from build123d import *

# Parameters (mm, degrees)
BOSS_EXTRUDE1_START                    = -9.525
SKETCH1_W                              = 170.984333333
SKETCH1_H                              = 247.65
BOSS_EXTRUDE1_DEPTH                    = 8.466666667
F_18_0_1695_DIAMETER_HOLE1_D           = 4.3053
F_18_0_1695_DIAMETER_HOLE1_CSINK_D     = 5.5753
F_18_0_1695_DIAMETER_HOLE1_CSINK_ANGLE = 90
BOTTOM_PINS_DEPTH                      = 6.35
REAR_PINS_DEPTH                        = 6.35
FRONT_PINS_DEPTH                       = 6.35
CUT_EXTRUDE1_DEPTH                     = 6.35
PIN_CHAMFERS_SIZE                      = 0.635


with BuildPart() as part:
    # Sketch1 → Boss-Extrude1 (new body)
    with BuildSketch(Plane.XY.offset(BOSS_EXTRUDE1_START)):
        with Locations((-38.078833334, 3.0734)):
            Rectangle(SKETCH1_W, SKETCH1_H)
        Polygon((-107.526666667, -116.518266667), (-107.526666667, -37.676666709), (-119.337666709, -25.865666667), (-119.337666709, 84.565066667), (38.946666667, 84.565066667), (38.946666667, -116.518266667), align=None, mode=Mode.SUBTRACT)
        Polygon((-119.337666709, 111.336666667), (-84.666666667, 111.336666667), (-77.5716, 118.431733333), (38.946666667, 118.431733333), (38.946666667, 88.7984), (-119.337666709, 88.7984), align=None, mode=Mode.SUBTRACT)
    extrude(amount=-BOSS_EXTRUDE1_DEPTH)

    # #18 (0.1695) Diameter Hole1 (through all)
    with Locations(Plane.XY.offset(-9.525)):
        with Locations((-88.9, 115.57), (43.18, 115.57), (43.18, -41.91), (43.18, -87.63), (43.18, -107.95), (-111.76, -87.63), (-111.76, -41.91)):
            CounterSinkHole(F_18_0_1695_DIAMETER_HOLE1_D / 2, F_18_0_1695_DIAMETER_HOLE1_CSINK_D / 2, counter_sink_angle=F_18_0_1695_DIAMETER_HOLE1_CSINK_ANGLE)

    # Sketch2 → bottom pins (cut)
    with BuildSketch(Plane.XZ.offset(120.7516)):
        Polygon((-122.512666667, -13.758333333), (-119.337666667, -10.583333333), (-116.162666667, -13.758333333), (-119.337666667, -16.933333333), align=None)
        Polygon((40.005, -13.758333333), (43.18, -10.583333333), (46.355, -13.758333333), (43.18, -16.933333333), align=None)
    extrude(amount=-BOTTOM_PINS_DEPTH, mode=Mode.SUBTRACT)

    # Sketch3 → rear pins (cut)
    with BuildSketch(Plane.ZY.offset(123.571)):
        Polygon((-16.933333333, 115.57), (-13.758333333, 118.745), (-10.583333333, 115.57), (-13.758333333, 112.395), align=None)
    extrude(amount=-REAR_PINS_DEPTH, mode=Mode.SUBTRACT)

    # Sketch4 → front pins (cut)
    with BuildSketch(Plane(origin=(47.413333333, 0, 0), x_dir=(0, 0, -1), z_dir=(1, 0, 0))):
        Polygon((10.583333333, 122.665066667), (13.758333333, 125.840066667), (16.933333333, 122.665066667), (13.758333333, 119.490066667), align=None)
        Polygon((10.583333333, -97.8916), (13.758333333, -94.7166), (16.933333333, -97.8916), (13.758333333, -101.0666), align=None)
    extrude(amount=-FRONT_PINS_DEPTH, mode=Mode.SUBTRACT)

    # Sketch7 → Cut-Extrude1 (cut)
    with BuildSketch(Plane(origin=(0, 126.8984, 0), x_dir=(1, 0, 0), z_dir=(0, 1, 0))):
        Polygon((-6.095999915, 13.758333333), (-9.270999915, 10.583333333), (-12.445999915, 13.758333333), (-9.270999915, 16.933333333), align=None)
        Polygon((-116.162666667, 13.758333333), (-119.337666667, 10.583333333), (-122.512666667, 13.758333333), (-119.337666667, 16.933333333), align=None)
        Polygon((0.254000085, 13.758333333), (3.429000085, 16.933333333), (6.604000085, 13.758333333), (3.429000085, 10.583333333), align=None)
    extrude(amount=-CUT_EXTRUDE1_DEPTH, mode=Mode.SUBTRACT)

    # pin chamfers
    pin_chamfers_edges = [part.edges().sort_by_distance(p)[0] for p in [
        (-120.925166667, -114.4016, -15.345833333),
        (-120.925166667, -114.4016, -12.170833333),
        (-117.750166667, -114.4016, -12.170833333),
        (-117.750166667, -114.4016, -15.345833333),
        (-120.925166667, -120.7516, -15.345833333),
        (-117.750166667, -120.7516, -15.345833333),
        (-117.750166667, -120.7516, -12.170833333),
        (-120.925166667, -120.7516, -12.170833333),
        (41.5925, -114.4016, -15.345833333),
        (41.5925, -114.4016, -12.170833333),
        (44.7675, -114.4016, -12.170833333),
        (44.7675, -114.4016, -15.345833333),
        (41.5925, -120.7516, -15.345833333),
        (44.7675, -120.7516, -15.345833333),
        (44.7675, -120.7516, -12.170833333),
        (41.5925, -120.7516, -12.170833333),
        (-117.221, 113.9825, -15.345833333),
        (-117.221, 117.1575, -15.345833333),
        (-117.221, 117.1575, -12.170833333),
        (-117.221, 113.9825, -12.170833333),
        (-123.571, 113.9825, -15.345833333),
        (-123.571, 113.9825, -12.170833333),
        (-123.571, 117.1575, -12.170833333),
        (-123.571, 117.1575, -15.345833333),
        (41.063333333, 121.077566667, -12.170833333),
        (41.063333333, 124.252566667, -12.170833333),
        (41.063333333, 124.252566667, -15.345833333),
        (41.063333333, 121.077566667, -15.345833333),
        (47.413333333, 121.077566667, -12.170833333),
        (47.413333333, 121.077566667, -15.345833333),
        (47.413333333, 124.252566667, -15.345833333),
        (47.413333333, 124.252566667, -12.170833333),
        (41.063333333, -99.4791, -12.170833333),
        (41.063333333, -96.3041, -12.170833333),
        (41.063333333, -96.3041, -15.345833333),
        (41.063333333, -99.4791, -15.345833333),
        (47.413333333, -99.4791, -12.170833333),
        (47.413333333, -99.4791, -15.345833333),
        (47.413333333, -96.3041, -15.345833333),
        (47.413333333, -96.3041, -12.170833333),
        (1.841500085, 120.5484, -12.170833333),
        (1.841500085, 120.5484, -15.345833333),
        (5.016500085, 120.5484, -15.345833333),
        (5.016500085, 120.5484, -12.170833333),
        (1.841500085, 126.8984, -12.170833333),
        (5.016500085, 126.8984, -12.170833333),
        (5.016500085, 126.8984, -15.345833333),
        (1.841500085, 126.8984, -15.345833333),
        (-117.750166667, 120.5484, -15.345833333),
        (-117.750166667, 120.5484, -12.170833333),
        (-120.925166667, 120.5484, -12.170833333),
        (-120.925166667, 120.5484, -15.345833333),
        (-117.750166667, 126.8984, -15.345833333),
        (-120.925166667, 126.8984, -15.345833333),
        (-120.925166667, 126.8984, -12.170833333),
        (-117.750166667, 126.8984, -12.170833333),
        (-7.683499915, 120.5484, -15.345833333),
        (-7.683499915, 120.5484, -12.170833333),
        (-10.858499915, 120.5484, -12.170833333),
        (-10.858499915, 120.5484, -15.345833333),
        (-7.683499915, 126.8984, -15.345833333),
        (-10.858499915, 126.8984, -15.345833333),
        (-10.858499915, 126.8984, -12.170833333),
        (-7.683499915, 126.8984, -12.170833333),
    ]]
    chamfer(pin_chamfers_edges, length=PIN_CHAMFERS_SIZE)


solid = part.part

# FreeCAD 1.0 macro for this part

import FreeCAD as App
import Part
import Sketcher

V = App.Vector
Q = App.Units.Quantity


def edges_at(feature, points):
    """Names of the edges that pass closest to the given points."""
    edges = feature.Shape.Edges
    near = lambda p: min(range(len(edges)), key=lambda i: edges[i].distToShape(Part.Vertex(*p))[0])
    return sorted({f"Edge{near(p) + 1}" for p in points})

doc = App.newDocument("Part")
params = doc.addObject("Spreadsheet::Sheet", "Params")
for row, (alias, value) in enumerate([
    ("sketch1_height", "9.75 in"),
    ("sketch1_width", "1.365 in"),
    ("sketch1_height2", "3.104 in"),
    ("pad1_length", "8.466667 mm"),
    ("hole_diameter", "0.1695 in"),
    ("hole_csink_diameter", "0.2195 in"),
    ("pocket1_length", "0.25 in"),
    ("pocket2_length", "0.25 in"),
    ("pocket3_length", "0.25 in"),
    ("pocket4_length", "0.25 in"),
    ("chamfer_size", "0.025 in"),
], start=1):
    params.set(f"A{row}", alias)
    params.set(f"B{row}", "=" + value)
    params.setAlias(f"B{row}", alias)

body = doc.addObject("PartDesign::Body", "Body")

sketch1 = body.newObject("Sketcher::SketchObject", "Sketch")
sketch1.AttachmentSupport = (doc.getObject("XY_Plane"), [""])
sketch1.MapMode = "FlatFace"
sketch1.AttachmentOffset = App.Placement(V(0, 0, -0.375 * 25.4), App.Rotation())
sketch1.addGeometry(Part.LineSegment(V(-124, 127, 0), V(-124, -121, 0)), False)
sketch1.addGeometry(Part.LineSegment(V(-124, -121, 0), V(47, -121, 0)), False)
sketch1.addGeometry(Part.LineSegment(V(47, -121, 0), V(47, 127, 0)), False)
sketch1.addGeometry(Part.LineSegment(V(47, 127, 0), V(-124, 127, 0)), False)
sketch1.addGeometry(Part.LineSegment(V(39, -117, 0), V(-108, -117, 0)), False)
sketch1.addGeometry(Part.LineSegment(V(-108, -117, 0), V(-108, -38, 0)), False)
sketch1.addGeometry(Part.LineSegment(V(-108, -38, 0), V(-119, -26, 0)), False)
sketch1.addGeometry(Part.LineSegment(V(-119, -26, 0), V(-119, 85, 0)), False)
sketch1.addGeometry(Part.LineSegment(V(-119, 85, 0), V(39, 85, 0)), False)
sketch1.addGeometry(Part.LineSegment(V(39, 85, 0), V(39, -117, 0)), False)
sketch1.addGeometry(Part.LineSegment(V(-119, 89, 0), V(-119, 111, 0)), False)
sketch1.addGeometry(Part.LineSegment(V(-119, 111, 0), V(-85, 111, 0)), False)
sketch1.addGeometry(Part.LineSegment(V(-85, 111, 0), V(-78, 118, 0)), False)
sketch1.addGeometry(Part.LineSegment(V(-78, 118, 0), V(39, 118, 0)), False)
sketch1.addGeometry(Part.LineSegment(V(39, 118, 0), V(39, 89, 0)), False)
sketch1.addGeometry(Part.LineSegment(V(39, 89, 0), V(-119, 89, 0)), False)
sketch1.addConstraint(Sketcher.Constraint("Coincident", 0, 2, 1, 1))
sketch1.addConstraint(Sketcher.Constraint("Coincident", 1, 2, 2, 1))
sketch1.addConstraint(Sketcher.Constraint("Coincident", 2, 2, 3, 1))
sketch1.addConstraint(Sketcher.Constraint("Coincident", 3, 2, 0, 1))
sketch1.addConstraint(Sketcher.Constraint("Coincident", 4, 2, 5, 1))
sketch1.addConstraint(Sketcher.Constraint("Coincident", 5, 2, 6, 1))
sketch1.addConstraint(Sketcher.Constraint("Coincident", 6, 2, 7, 1))
sketch1.addConstraint(Sketcher.Constraint("Coincident", 7, 2, 8, 1))
sketch1.addConstraint(Sketcher.Constraint("Coincident", 8, 2, 9, 1))
sketch1.addConstraint(Sketcher.Constraint("Coincident", 9, 2, 4, 1))
sketch1.addConstraint(Sketcher.Constraint("Coincident", 10, 2, 11, 1))
sketch1.addConstraint(Sketcher.Constraint("Coincident", 11, 2, 12, 1))
sketch1.addConstraint(Sketcher.Constraint("Coincident", 12, 2, 13, 1))
sketch1.addConstraint(Sketcher.Constraint("Coincident", 13, 2, 14, 1))
sketch1.addConstraint(Sketcher.Constraint("Coincident", 14, 2, 15, 1))
sketch1.addConstraint(Sketcher.Constraint("Coincident", 15, 2, 10, 1))
sketch1.addConstraint(Sketcher.Constraint("Vertical", 0))
sketch1.addConstraint(Sketcher.Constraint("Horizontal", 1))
sketch1.addConstraint(Sketcher.Constraint("Vertical", 2))
sketch1.addConstraint(Sketcher.Constraint("Horizontal", 3))
sketch1.addConstraint(Sketcher.Constraint("Horizontal", 4))
sketch1.addConstraint(Sketcher.Constraint("Vertical", 5))
sketch1.addConstraint(Sketcher.Constraint("Vertical", 7))
sketch1.addConstraint(Sketcher.Constraint("Horizontal", 8))
sketch1.addConstraint(Sketcher.Constraint("Vertical", 9))
sketch1.addConstraint(Sketcher.Constraint("Vertical", 10))
sketch1.addConstraint(Sketcher.Constraint("Horizontal", 11))
sketch1.addConstraint(Sketcher.Constraint("Horizontal", 13))
sketch1.addConstraint(Sketcher.Constraint("Vertical", 14))
sketch1.addConstraint(Sketcher.Constraint("Horizontal", 15))
sketch1.addConstraint(Sketcher.Constraint("Perpendicular", 6, 12))
sketch1.addConstraint(Sketcher.Constraint("Vertical", 7, 2, 10, 2))
sketch1.addConstraint(Sketcher.Constraint("Vertical", 9, 2, 13, 2))
sketch1.addConstraint(Sketcher.Constraint("Angle", 6, Q("135 deg")))
sketch1.addConstraint(Sketcher.Constraint("DistanceY", 0, 2, 0, 1, Q("9.75 in")))
sketch1.addConstraint(Sketcher.Constraint("DistanceX", 4, 2, 1, 2, Q("6.1 in")))
sketch1.addConstraint(Sketcher.Constraint("DistanceX", 11, 2, 2, 2, Q("5.2 in")))
sketch1.addConstraint(Sketcher.Constraint("DistanceY", 14, 2, 2, 2, Q("1.5 in")))
sketch1.addConstraint(Sketcher.Constraint("DistanceX", 11, 1, 11, 2, Q("1.365 in")))
sketch1.addConstraint(Sketcher.Constraint("DistanceY", 5, 1, 5, 2, Q("3.104 in")))
sketch1.addConstraint(Sketcher.Constraint("DistanceX", 0, 2, -1, 1, Q("4.865 in")))
sketch1.addConstraint(Sketcher.Constraint("DistanceY", 0, 2, -1, 1, Q("4.754 in")))
sketch1.addConstraint(Sketcher.Constraint("DistanceX", 12, 2, -1, 1, Q("3.054 in")))
sketch1.addConstraint(Sketcher.Constraint("DistanceY", 7, 2, 10, 2, Q("1.054 in")))
sketch1.addConstraint(Sketcher.Constraint("Distance", 12, Q("10.03394 mm")))
sketch1.addConstraint(Sketcher.Constraint("DistanceX", 4, 2, 4, 1, Q("146.473333 mm")))
sketch1.addConstraint(Sketcher.Constraint("DistanceY", 7, 1, 7, 2, Q("110.430733 mm")))
sketch1.addConstraint(Sketcher.Constraint("DistanceY", 10, 1, 10, 2, Q("22.538267 mm")))
sketch1.setExpression("Constraints[34]", "Params.sketch1_height")
sketch1.setExpression("Constraints[38]", "Params.sketch1_width")
sketch1.setExpression("Constraints[39]", "Params.sketch1_height2")
pad1 = body.newObject("PartDesign::Pad", "Pad")
pad1.Profile = sketch1
pad1.setExpression("Length", "Params.pad1_length")
pad1.Reversed = True

sketch2 = body.newObject("Sketcher::SketchObject", "Sketch001")
sketch2.AttachmentSupport = (doc.getObject("XY_Plane"), [""])
sketch2.MapMode = "FlatFace"
sketch2.AttachmentOffset = App.Placement(V(0, 0, -0.375 * 25.4), App.Rotation())
sketch2.addGeometry(Part.Circle(V(-88.9, 115.6, 0), V(0, 0, 1), 2.2), False)
sketch2.addGeometry(Part.Circle(V(43.2, 115.6, 0), V(0, 0, 1), 2.2), False)
sketch2.addGeometry(Part.Circle(V(43.2, -41.9, 0), V(0, 0, 1), 2.2), False)
sketch2.addGeometry(Part.Circle(V(43.2, -87.6, 0), V(0, 0, 1), 2.2), False)
sketch2.addGeometry(Part.Circle(V(43.2, -108, 0), V(0, 0, 1), 2.2), False)
sketch2.addGeometry(Part.Circle(V(-111.8, -87.6, 0), V(0, 0, 1), 2.2), False)
sketch2.addGeometry(Part.Circle(V(-111.8, -41.9, 0), V(0, 0, 1), 2.2), False)
sketch2.addConstraint(Sketcher.Constraint("Equal", 0, 1))
sketch2.addConstraint(Sketcher.Constraint("Equal", 1, 2))
sketch2.addConstraint(Sketcher.Constraint("Equal", 2, 3))
sketch2.addConstraint(Sketcher.Constraint("Equal", 3, 4))
sketch2.addConstraint(Sketcher.Constraint("Equal", 4, 5))
sketch2.addConstraint(Sketcher.Constraint("Equal", 5, 6))
sketch2.addConstraint(Sketcher.Constraint("Horizontal", 0, 3, 1, 3))
sketch2.addConstraint(Sketcher.Constraint("Horizontal", 3, 3, 5, 3))
sketch2.addConstraint(Sketcher.Constraint("Horizontal", 2, 3, 6, 3))
sketch2.addConstraint(Sketcher.Constraint("Vertical", 1, 3, 2, 3))
sketch2.addConstraint(Sketcher.Constraint("Vertical", 2, 3, 3, 3))
sketch2.addConstraint(Sketcher.Constraint("Vertical", 3, 3, 4, 3))
sketch2.addConstraint(Sketcher.Constraint("Vertical", 5, 3, 6, 3))
sketch2.addConstraint(Sketcher.Constraint("DistanceY", 3, 3, 1, 3, Q("8 in")))
sketch2.addConstraint(Sketcher.Constraint("Diameter", 0, Q("0.1695 in")))
sketch2.addConstraint(Sketcher.Constraint("DistanceX", 0, 3, -1, 1, Q("3.5 in")))
sketch2.addConstraint(Sketcher.Constraint("DistanceX", -1, 1, 1, 3, Q("1.7 in")))
sketch2.addConstraint(Sketcher.Constraint("DistanceX", 5, 3, -1, 1, Q("4.4 in")))
sketch2.addConstraint(Sketcher.Constraint("DistanceY", 2, 3, 1, 3, Q("6.2 in")))
sketch2.addConstraint(Sketcher.Constraint("DistanceY", 4, 3, 3, 3, Q("0.8 in")))
sketch2.addConstraint(Sketcher.Constraint("DistanceY", -1, 1, 0, 3, Q("4.55 in")))
doc.recompute()
hole = body.newObject("PartDesign::Hole", "Hole")
hole.Profile = sketch2
hole.ThreadType = "None"
hole.setExpression("Diameter", "Params.hole_diameter")
hole.DepthType = "ThroughAll"
hole.HoleCutType = "Countersink"
hole.setExpression("HoleCutDiameter", "Params.hole_csink_diameter")
hole.HoleCutCountersinkAngle = 90

sketch3 = body.newObject("Sketcher::SketchObject", "Sketch002")
sketch3.AttachmentSupport = (doc.getObject("XZ_Plane"), [""])
sketch3.MapMode = "FlatFace"
sketch3.AttachmentOffset = App.Placement(V(0, 0, 4.754 * 25.4), App.Rotation())
sketch3.addGeometry(Part.LineSegment(V(-119.3, -10.6, 0), V(-122.5, -13.8, 0)), False)
sketch3.addGeometry(Part.LineSegment(V(-122.5, -13.8, 0), V(-119.3, -16.9, 0)), False)
sketch3.addGeometry(Part.LineSegment(V(-119.3, -16.9, 0), V(-116.2, -13.8, 0)), False)
sketch3.addGeometry(Part.LineSegment(V(-116.2, -13.8, 0), V(-119.3, -10.6, 0)), False)
sketch3.addGeometry(Part.LineSegment(V(43.2, -10.6, 0), V(40, -13.8, 0)), False)
sketch3.addGeometry(Part.LineSegment(V(40, -13.8, 0), V(43.2, -16.9, 0)), False)
sketch3.addGeometry(Part.LineSegment(V(43.2, -16.9, 0), V(46.4, -13.8, 0)), False)
sketch3.addGeometry(Part.LineSegment(V(46.4, -13.8, 0), V(43.2, -10.6, 0)), False)
sketch3.addConstraint(Sketcher.Constraint("Coincident", 0, 2, 1, 1))
sketch3.addConstraint(Sketcher.Constraint("Coincident", 1, 2, 2, 1))
sketch3.addConstraint(Sketcher.Constraint("Coincident", 2, 2, 3, 1))
sketch3.addConstraint(Sketcher.Constraint("Coincident", 3, 2, 0, 1))
sketch3.addConstraint(Sketcher.Constraint("Coincident", 4, 2, 5, 1))
sketch3.addConstraint(Sketcher.Constraint("Coincident", 5, 2, 6, 1))
sketch3.addConstraint(Sketcher.Constraint("Coincident", 6, 2, 7, 1))
sketch3.addConstraint(Sketcher.Constraint("Coincident", 7, 2, 4, 1))
sketch3.addConstraint(Sketcher.Constraint("Perpendicular", 0, 1))
sketch3.addConstraint(Sketcher.Constraint("Perpendicular", 1, 2))
sketch3.addConstraint(Sketcher.Constraint("Perpendicular", 2, 3))
sketch3.addConstraint(Sketcher.Constraint("Perpendicular", 3, 4))
sketch3.addConstraint(Sketcher.Constraint("Perpendicular", 4, 5))
sketch3.addConstraint(Sketcher.Constraint("Perpendicular", 5, 6))
sketch3.addConstraint(Sketcher.Constraint("Perpendicular", 6, 7))
sketch3.addConstraint(Sketcher.Constraint("Horizontal", 0, 2, 2, 2))
sketch3.addConstraint(Sketcher.Constraint("Horizontal", 2, 2, 4, 2))
sketch3.addConstraint(Sketcher.Constraint("Horizontal", 1, 2, 5, 2))
sketch3.addConstraint(Sketcher.Constraint("Horizontal", 4, 2, 6, 2))
sketch3.addConstraint(Sketcher.Constraint("Vertical", 1, 2, 3, 2))
sketch3.addConstraint(Sketcher.Constraint("DistanceX", -1, 1, 5, 2, Q("1.7 in")))
sketch3.addConstraint(Sketcher.Constraint("DistanceX", 0, 2, 2, 2, Q("0.25 in")))
sketch3.addConstraint(Sketcher.Constraint("DistanceX", 0, 2, -1, 1, Q("122.512667 mm")))
sketch3.addConstraint(Sketcher.Constraint("DistanceY", 0, 2, -1, 1, Q("13.758333 mm")))
pocket1 = body.newObject("PartDesign::Pocket", "Pocket")
pocket1.Profile = sketch3
pocket1.setExpression("Length", "Params.pocket1_length")

sketch4 = body.newObject("Sketcher::SketchObject", "Sketch003")
sketch4.AttachmentSupport = (doc.getObject("YZ_Plane"), [""])
sketch4.MapMode = "FlatFace"
sketch4.AttachmentOffset = App.Placement(V(0, 0, -4.865 * 25.4), App.Rotation())
sketch4.addGeometry(Part.LineSegment(V(118.7, -13.8, 0), V(115.6, -16.9, 0)), False)
sketch4.addGeometry(Part.LineSegment(V(115.6, -16.9, 0), V(112.4, -13.8, 0)), False)
sketch4.addGeometry(Part.LineSegment(V(112.4, -13.8, 0), V(115.6, -10.6, 0)), False)
sketch4.addGeometry(Part.LineSegment(V(115.6, -10.6, 0), V(118.7, -13.8, 0)), False)
sketch4.addConstraint(Sketcher.Constraint("Coincident", 0, 2, 1, 1))
sketch4.addConstraint(Sketcher.Constraint("Coincident", 1, 2, 2, 1))
sketch4.addConstraint(Sketcher.Constraint("Coincident", 2, 2, 3, 1))
sketch4.addConstraint(Sketcher.Constraint("Coincident", 3, 2, 0, 1))
sketch4.addConstraint(Sketcher.Constraint("Perpendicular", 0, 1))
sketch4.addConstraint(Sketcher.Constraint("Perpendicular", 1, 2))
sketch4.addConstraint(Sketcher.Constraint("Perpendicular", 2, 3))
sketch4.addConstraint(Sketcher.Constraint("Horizontal", 1, 2, 3, 2))
sketch4.addConstraint(Sketcher.Constraint("Vertical", 0, 2, 2, 2))
sketch4.addConstraint(Sketcher.Constraint("DistanceX", -1, 1, 0, 2, Q("4.55 in")))
sketch4.addConstraint(Sketcher.Constraint("DistanceY", 0, 2, 2, 2, Q("0.25 in")))
sketch4.addConstraint(Sketcher.Constraint("DistanceY", 0, 2, -1, 1, Q("16.933333 mm")))
pocket2 = body.newObject("PartDesign::Pocket", "Pocket001")
pocket2.Profile = sketch4
pocket2.setExpression("Length", "Params.pocket2_length")
pocket2.Reversed = True

sketch5 = body.newObject("Sketcher::SketchObject", "Sketch004")
sketch5.AttachmentSupport = (doc.getObject("YZ_Plane"), [""])
sketch5.MapMode = "FlatFace"
sketch5.AttachmentOffset = App.Placement(V(0, 0, 47.413333), App.Rotation())
sketch5.addGeometry(Part.LineSegment(V(125.8, -13.8, 0), V(122.7, -10.6, 0)), False)
sketch5.addGeometry(Part.LineSegment(V(122.7, -10.6, 0), V(119.5, -13.8, 0)), False)
sketch5.addGeometry(Part.LineSegment(V(119.5, -13.8, 0), V(122.7, -16.9, 0)), False)
sketch5.addGeometry(Part.LineSegment(V(122.7, -16.9, 0), V(125.8, -13.8, 0)), False)
sketch5.addGeometry(Part.LineSegment(V(-94.7, -13.8, 0), V(-97.9, -10.6, 0)), False)
sketch5.addGeometry(Part.LineSegment(V(-97.9, -10.6, 0), V(-101.1, -13.8, 0)), False)
sketch5.addGeometry(Part.LineSegment(V(-101.1, -13.8, 0), V(-97.9, -16.9, 0)), False)
sketch5.addGeometry(Part.LineSegment(V(-97.9, -16.9, 0), V(-94.7, -13.8, 0)), False)
sketch5.addConstraint(Sketcher.Constraint("Coincident", 0, 2, 1, 1))
sketch5.addConstraint(Sketcher.Constraint("Coincident", 1, 2, 2, 1))
sketch5.addConstraint(Sketcher.Constraint("Coincident", 2, 2, 3, 1))
sketch5.addConstraint(Sketcher.Constraint("Coincident", 3, 2, 0, 1))
sketch5.addConstraint(Sketcher.Constraint("Coincident", 4, 2, 5, 1))
sketch5.addConstraint(Sketcher.Constraint("Coincident", 5, 2, 6, 1))
sketch5.addConstraint(Sketcher.Constraint("Coincident", 6, 2, 7, 1))
sketch5.addConstraint(Sketcher.Constraint("Coincident", 7, 2, 4, 1))
sketch5.addConstraint(Sketcher.Constraint("Perpendicular", 0, 1))
sketch5.addConstraint(Sketcher.Constraint("Perpendicular", 1, 2))
sketch5.addConstraint(Sketcher.Constraint("Perpendicular", 2, 3))
sketch5.addConstraint(Sketcher.Constraint("Perpendicular", 3, 4))
sketch5.addConstraint(Sketcher.Constraint("Perpendicular", 4, 5))
sketch5.addConstraint(Sketcher.Constraint("Perpendicular", 5, 6))
sketch5.addConstraint(Sketcher.Constraint("Perpendicular", 6, 7))
sketch5.addConstraint(Sketcher.Constraint("Horizontal", 1, 2, 3, 2))
sketch5.addConstraint(Sketcher.Constraint("Horizontal", 0, 2, 4, 2))
sketch5.addConstraint(Sketcher.Constraint("Horizontal", 3, 2, 5, 2))
sketch5.addConstraint(Sketcher.Constraint("Horizontal", 2, 2, 6, 2))
sketch5.addConstraint(Sketcher.Constraint("Vertical", 0, 2, 2, 2))
sketch5.addConstraint(Sketcher.Constraint("DistanceY", 2, 2, 0, 2, Q("0.25 in")))
sketch5.addConstraint(Sketcher.Constraint("DistanceX", 4, 2, -1, 1, Q("3.854 in")))
sketch5.addConstraint(Sketcher.Constraint("DistanceX", -1, 1, 0, 2, Q("122.665067 mm")))
sketch5.addConstraint(Sketcher.Constraint("DistanceY", 0, 2, -1, 1, Q("10.583333 mm")))
pocket3 = body.newObject("PartDesign::Pocket", "Pocket002")
pocket3.Profile = sketch5
pocket3.setExpression("Length", "Params.pocket3_length")

sketch6 = body.newObject("Sketcher::SketchObject", "Sketch005")
sketch6.AttachmentSupport = (doc.getObject("XZ_Plane"), [""])
sketch6.MapMode = "FlatFace"
sketch6.AttachmentOffset = App.Placement(V(0, 0, -4.996 * 25.4), App.Rotation())
sketch6.addGeometry(Part.LineSegment(V(-9.3, -10.6, 0), V(-6.1, -13.8, 0)), False)
sketch6.addGeometry(Part.LineSegment(V(-6.1, -13.8, 0), V(-9.3, -16.9, 0)), False)
sketch6.addGeometry(Part.LineSegment(V(-9.3, -16.9, 0), V(-12.4, -13.8, 0)), False)
sketch6.addGeometry(Part.LineSegment(V(-12.4, -13.8, 0), V(-9.3, -10.6, 0)), False)
sketch6.addGeometry(Part.LineSegment(V(-119.3, -10.6, 0), V(-116.2, -13.8, 0)), False)
sketch6.addGeometry(Part.LineSegment(V(-116.2, -13.8, 0), V(-119.3, -16.9, 0)), False)
sketch6.addGeometry(Part.LineSegment(V(-119.3, -16.9, 0), V(-122.5, -13.8, 0)), False)
sketch6.addGeometry(Part.LineSegment(V(-122.5, -13.8, 0), V(-119.3, -10.6, 0)), False)
sketch6.addGeometry(Part.LineSegment(V(3.4, -16.9, 0), V(0.3, -13.8, 0)), False)
sketch6.addGeometry(Part.LineSegment(V(0.3, -13.8, 0), V(3.4, -10.6, 0)), False)
sketch6.addGeometry(Part.LineSegment(V(3.4, -10.6, 0), V(6.6, -13.8, 0)), False)
sketch6.addGeometry(Part.LineSegment(V(6.6, -13.8, 0), V(3.4, -16.9, 0)), False)
sketch6.addConstraint(Sketcher.Constraint("Coincident", 0, 2, 1, 1))
sketch6.addConstraint(Sketcher.Constraint("Coincident", 1, 2, 2, 1))
sketch6.addConstraint(Sketcher.Constraint("Coincident", 2, 2, 3, 1))
sketch6.addConstraint(Sketcher.Constraint("Coincident", 3, 2, 0, 1))
sketch6.addConstraint(Sketcher.Constraint("Coincident", 4, 2, 5, 1))
sketch6.addConstraint(Sketcher.Constraint("Coincident", 5, 2, 6, 1))
sketch6.addConstraint(Sketcher.Constraint("Coincident", 6, 2, 7, 1))
sketch6.addConstraint(Sketcher.Constraint("Coincident", 7, 2, 4, 1))
sketch6.addConstraint(Sketcher.Constraint("Coincident", 8, 2, 9, 1))
sketch6.addConstraint(Sketcher.Constraint("Coincident", 9, 2, 10, 1))
sketch6.addConstraint(Sketcher.Constraint("Coincident", 10, 2, 11, 1))
sketch6.addConstraint(Sketcher.Constraint("Coincident", 11, 2, 8, 1))
sketch6.addConstraint(Sketcher.Constraint("Perpendicular", 0, 1))
sketch6.addConstraint(Sketcher.Constraint("Perpendicular", 1, 2))
sketch6.addConstraint(Sketcher.Constraint("Perpendicular", 2, 3))
sketch6.addConstraint(Sketcher.Constraint("Perpendicular", 3, 4))
sketch6.addConstraint(Sketcher.Constraint("Perpendicular", 4, 5))
sketch6.addConstraint(Sketcher.Constraint("Perpendicular", 5, 6))
sketch6.addConstraint(Sketcher.Constraint("Perpendicular", 6, 7))
sketch6.addConstraint(Sketcher.Constraint("Perpendicular", 7, 8))
sketch6.addConstraint(Sketcher.Constraint("Perpendicular", 8, 9))
sketch6.addConstraint(Sketcher.Constraint("Perpendicular", 9, 10))
sketch6.addConstraint(Sketcher.Constraint("Perpendicular", 10, 11))
sketch6.addConstraint(Sketcher.Constraint("Horizontal", 0, 2, 2, 2))
sketch6.addConstraint(Sketcher.Constraint("Horizontal", 2, 2, 4, 2))
sketch6.addConstraint(Sketcher.Constraint("Horizontal", 1, 2, 5, 2))
sketch6.addConstraint(Sketcher.Constraint("Horizontal", 4, 2, 6, 2))
sketch6.addConstraint(Sketcher.Constraint("Horizontal", 6, 2, 8, 2))
sketch6.addConstraint(Sketcher.Constraint("Horizontal", 7, 2, 9, 2))
sketch6.addConstraint(Sketcher.Constraint("Horizontal", 8, 2, 10, 2))
sketch6.addConstraint(Sketcher.Constraint("Vertical", 1, 2, 3, 2))
sketch6.addConstraint(Sketcher.Constraint("DistanceX", 2, 2, 8, 2, Q("0.5 in")))
sketch6.addConstraint(Sketcher.Constraint("DistanceX", 0, 2, -1, 1, Q("0.24 in")))
sketch6.addConstraint(Sketcher.Constraint("DistanceX", 2, 2, -1, 1, Q("0.49 in")))
sketch6.addConstraint(Sketcher.Constraint("DistanceY", 0, 2, -1, 1, Q("13.758333 mm")))
sketch6.addConstraint(Sketcher.Constraint("DistanceX", 4, 2, -1, 1, Q("116.162667 mm")))
pocket4 = body.newObject("PartDesign::Pocket", "Pocket003")
pocket4.Profile = sketch6
pocket4.setExpression("Length", "Params.pocket4_length")
pocket4.Reversed = True
doc.recompute()

chamfer = body.newObject("PartDesign::Chamfer", "Chamfer")
chamfer.Base = (pocket4, edges_at(pocket4, [
    (-120.925, -114.402, -15.346),
    (-120.925, -114.402, -12.171),
    (-117.75, -114.402, -12.171),
    (-117.75, -114.402, -15.346),
    (-120.925, -120.752, -15.346),
    (-117.75, -120.752, -15.346),
    (-117.75, -120.752, -12.171),
    (-120.925, -120.752, -12.171),
    (41.593, -114.402, -15.346),
    (41.593, -114.402, -12.171),
    (44.767, -114.402, -12.171),
    (44.767, -114.402, -15.346),
    (41.593, -120.752, -15.346),
    (44.767, -120.752, -15.346),
    (44.767, -120.752, -12.171),
    (41.593, -120.752, -12.171),
    (-117.221, 113.983, -15.346),
    (-117.221, 117.157, -15.346),
    (-117.221, 117.157, -12.171),
    (-117.221, 113.983, -12.171),
    (-123.571, 113.983, -15.346),
    (-123.571, 113.983, -12.171),
    (-123.571, 117.157, -12.171),
    (-123.571, 117.157, -15.346),
    (41.063, 121.078, -12.171),
    (41.063, 124.253, -12.171),
    (41.063, 124.253, -15.346),
    (41.063, 121.078, -15.346),
    (47.413, 121.078, -12.171),
    (47.413, 121.078, -15.346),
    (47.413, 124.253, -15.346),
    (47.413, 124.253, -12.171),
    (41.063, -99.479, -12.171),
    (41.063, -96.304, -12.171),
    (41.063, -96.304, -15.346),
    (41.063, -99.479, -15.346),
    (47.413, -99.479, -12.171),
    (47.413, -99.479, -15.346),
    (47.413, -96.304, -15.346),
    (47.413, -96.304, -12.171),
    (1.842, 120.548, -12.171),
    (1.842, 120.548, -15.346),
    (5.017, 120.548, -15.346),
    (5.017, 120.548, -12.171),
    (1.842, 126.898, -12.171),
    (5.017, 126.898, -12.171),
    (5.017, 126.898, -15.346),
    (1.842, 126.898, -15.346),
    (-117.75, 120.548, -15.346),
    (-117.75, 120.548, -12.171),
    (-120.925, 120.548, -12.171),
    (-120.925, 120.548, -15.346),
    (-117.75, 126.898, -15.346),
    (-120.925, 126.898, -15.346),
    (-120.925, 126.898, -12.171),
    (-117.75, 126.898, -12.171),
    (-7.683, 120.548, -15.346),
    (-7.683, 120.548, -12.171),
    (-10.858, 120.548, -12.171),
    (-10.858, 120.548, -15.346),
    (-7.683, 126.898, -15.346),
    (-10.858, 126.898, -15.346),
    (-10.858, 126.898, -12.171),
    (-7.683, 126.898, -12.171),
]))
chamfer.setExpression("Size", "Params.chamfer_size")

doc.recompute()
